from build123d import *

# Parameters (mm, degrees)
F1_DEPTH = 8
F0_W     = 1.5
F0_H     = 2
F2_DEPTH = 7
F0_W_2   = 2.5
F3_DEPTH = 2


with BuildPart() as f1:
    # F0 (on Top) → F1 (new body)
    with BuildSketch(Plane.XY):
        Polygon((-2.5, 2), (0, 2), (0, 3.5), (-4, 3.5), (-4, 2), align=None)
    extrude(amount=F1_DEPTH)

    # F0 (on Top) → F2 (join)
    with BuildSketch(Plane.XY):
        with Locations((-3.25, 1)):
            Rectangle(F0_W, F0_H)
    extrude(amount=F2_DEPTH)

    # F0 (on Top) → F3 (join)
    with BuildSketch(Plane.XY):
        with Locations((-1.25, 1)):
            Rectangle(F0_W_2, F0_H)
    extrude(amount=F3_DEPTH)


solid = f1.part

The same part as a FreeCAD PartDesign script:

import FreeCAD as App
import Part
import Sketcher

V = App.Vector


def add_polygon(sketch, points):
    """Adds a closed chain of lines whose ends are joined by coincident constraints."""
    first, n = sketch.GeometryCount, len(points)
    for a, b in zip(points, points[1:] + points[:1]):
        sketch.addGeometry(Part.LineSegment(App.Vector(*a, 0), App.Vector(*b, 0)), False)
    for i in range(n):
        sketch.addConstraint(Sketcher.Constraint("Coincident", first + i, 2, first + (i + 1) % n, 1))

doc = App.newDocument("Part")
body = doc.addObject("PartDesign::Body", "Body")

# Sketch on XY plane
sketch1 = body.newObject("Sketcher::SketchObject", "Sketch")
sketch1.AttachmentSupport = (doc.getObject("XY_Plane"), [""])
sketch1.MapMode = "FlatFace"
add_polygon(sketch1, [(0, 2), (0, 3.5), (-4, 3.5), (-4, 2)])  # lines 0-3
sketch1.addConstraint([
    Sketcher.Constraint("Vertical", 0),
    Sketcher.Constraint("Horizontal", 1),
    Sketcher.Constraint("Vertical", 2),
    Sketcher.Constraint("Horizontal", 3),
    Sketcher.Constraint("PointOnObject", 0, 2, -2),
    Sketcher.Constraint("DistanceX", 1, 2, 1, 1, 4.0),
    Sketcher.Constraint("DistanceY", 0, 1, 0, 2, 1.5),
    Sketcher.Constraint("DistanceY", -1, 1, 2, 2, 2.0),
])
pad1 = body.newObject("PartDesign::Pad", "Pad")
pad1.Profile = sketch1
pad1.Length = 8

# Sketch on XY plane
sketch2 = body.newObject("Sketcher::SketchObject", "Sketch001")
sketch2.AttachmentSupport = (doc.getObject("XY_Plane"), [""])
sketch2.MapMode = "FlatFace"
add_polygon(sketch2, [(-4, 2), (-4, 0), (-2.5, 0), (-2.5, 2)])  # lines 0-3
sketch2.addConstraint([
    Sketcher.Constraint("Vertical", 0),
    Sketcher.Constraint("Horizontal", 1),
    Sketcher.Constraint("Vertical", 2),
    Sketcher.Constraint("Horizontal", 3),
    Sketcher.Constraint("PointOnObject", 0, 2, -1),
    Sketcher.Constraint("DistanceY", 0, 2, 0, 1, 2.0),
    Sketcher.Constraint("DistanceX", 1, 1, 1, 2, 1.5),
    Sketcher.Constraint("DistanceX", 0, 2, -1, 1, 4.0),
])
pad2 = body.newObject("PartDesign::Pad", "Pad001")
pad2.Profile = sketch2
pad2.Length = 7

# Sketch on XY plane
sketch3 = body.newObject("Sketcher::SketchObject", "Sketch002")
sketch3.AttachmentSupport = (doc.getObject("XY_Plane"), [""])
sketch3.MapMode = "FlatFace"
add_polygon(sketch3, [(-2.5, 2), (-2.5, 0), (0, 0), (0, 2)])  # lines 0-3
sketch3.addConstraint([
    Sketcher.Constraint("Vertical", 0),
    Sketcher.Constraint("Horizontal", 1),
    Sketcher.Constraint("Vertical", 2),
    Sketcher.Constraint("Horizontal", 3),
    Sketcher.Constraint("Coincident", 1, 2, -1, 1),
    Sketcher.Constraint("DistanceY", 0, 2, 0, 1, 2.0),
    Sketcher.Constraint("DistanceX", 1, 1, 1, 2, 2.5),
])
pad3 = body.newObject("PartDesign::Pad", "Pad002")
pad3.Profile = sketch3
pad3.Length = 2

doc.recompute()
